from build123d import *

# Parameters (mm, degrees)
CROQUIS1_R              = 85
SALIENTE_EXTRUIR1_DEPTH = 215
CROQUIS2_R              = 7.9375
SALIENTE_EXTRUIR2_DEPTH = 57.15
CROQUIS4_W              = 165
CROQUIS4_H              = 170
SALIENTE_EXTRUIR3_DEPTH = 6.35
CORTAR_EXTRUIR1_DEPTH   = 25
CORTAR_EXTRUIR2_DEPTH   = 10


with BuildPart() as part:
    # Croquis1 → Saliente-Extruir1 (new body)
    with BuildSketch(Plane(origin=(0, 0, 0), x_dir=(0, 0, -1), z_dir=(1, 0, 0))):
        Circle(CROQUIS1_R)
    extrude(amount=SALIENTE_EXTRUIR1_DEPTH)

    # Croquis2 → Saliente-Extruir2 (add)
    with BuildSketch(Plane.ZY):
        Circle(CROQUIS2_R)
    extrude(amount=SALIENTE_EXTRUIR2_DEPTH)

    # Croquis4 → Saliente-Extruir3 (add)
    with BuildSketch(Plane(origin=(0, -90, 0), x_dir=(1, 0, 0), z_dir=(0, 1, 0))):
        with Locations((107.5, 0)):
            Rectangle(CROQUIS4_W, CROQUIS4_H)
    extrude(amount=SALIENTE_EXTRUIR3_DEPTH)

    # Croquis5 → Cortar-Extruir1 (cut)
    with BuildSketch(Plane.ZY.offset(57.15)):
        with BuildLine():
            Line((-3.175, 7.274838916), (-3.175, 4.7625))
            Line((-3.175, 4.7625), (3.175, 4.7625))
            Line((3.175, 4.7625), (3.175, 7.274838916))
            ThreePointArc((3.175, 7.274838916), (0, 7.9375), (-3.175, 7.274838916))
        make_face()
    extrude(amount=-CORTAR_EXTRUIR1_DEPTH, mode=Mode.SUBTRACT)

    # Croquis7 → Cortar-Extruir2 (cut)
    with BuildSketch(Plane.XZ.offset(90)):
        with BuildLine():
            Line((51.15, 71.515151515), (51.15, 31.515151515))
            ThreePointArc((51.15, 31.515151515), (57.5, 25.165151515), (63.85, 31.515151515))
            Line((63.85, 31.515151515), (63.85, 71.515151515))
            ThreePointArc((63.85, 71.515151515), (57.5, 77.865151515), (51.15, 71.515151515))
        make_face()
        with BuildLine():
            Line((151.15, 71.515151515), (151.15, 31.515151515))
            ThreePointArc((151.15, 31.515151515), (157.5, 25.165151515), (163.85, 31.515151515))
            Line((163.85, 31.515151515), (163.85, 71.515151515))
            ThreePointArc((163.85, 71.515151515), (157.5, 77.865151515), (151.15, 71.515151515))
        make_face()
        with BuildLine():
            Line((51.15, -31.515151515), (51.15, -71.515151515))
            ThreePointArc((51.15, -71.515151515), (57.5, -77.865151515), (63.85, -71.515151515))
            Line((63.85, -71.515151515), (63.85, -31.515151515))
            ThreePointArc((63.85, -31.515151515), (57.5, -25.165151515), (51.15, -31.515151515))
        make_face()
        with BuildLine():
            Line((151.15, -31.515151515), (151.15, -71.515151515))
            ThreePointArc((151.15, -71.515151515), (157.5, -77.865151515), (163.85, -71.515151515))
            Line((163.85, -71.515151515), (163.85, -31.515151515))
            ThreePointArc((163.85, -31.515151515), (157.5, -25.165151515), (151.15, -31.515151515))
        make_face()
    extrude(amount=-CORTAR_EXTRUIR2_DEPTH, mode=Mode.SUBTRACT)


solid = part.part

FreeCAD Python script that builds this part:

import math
import FreeCAD as App
import Part
import Sketcher

doc = App.newDocument("Part")
body = doc.addObject("PartDesign::Body", "Body")

# Sketch on YZ plane
sketch1 = body.newObject("Sketcher::SketchObject", "Sketch")
sketch1.AttachmentSupport = (doc.getObject("YZ_Plane"), [""])
sketch1.MapMode = "FlatFace"
sketch1.addGeometry(Part.Circle(App.Vector(0, 0, 0), App.Vector(0, 0, 1), 85), False)
sketch1.addConstraint([
    Sketcher.Constraint("Coincident", 0, 3, -1, 1),
    Sketcher.Constraint("Diameter", 0, 170.0),
])
pad1 = body.newObject("PartDesign::Pad", "Pad")
pad1.Profile = sketch1
pad1.Length = 215

# Sketch on YZ plane
sketch2 = body.newObject("Sketcher::SketchObject", "Sketch001")
sketch2.AttachmentSupport = (doc.getObject("YZ_Plane"), [""])
sketch2.MapMode = "FlatFace"
sketch2.addGeometry(Part.Circle(App.Vector(0, 0, 0), App.Vector(0, 0, 1), 8), False)
sketch2.addConstraint([
    Sketcher.Constraint("Coincident", 0, 3, -1, 1),
    Sketcher.Constraint("Diameter", 0, 15.875),
])
pad2 = body.newObject("PartDesign::Pad", "Pad001")
pad2.Profile = sketch2
pad2.Length = 57.15
pad2.Reversed = True

# Sketch on XZ plane
sketch3 = body.newObject("Sketcher::SketchObject", "Sketch002")
sketch3.AttachmentSupport = (doc.getObject("XZ_Plane"), [""])
sketch3.MapMode = "FlatFace"
sketch3.AttachmentOffset = App.Placement(App.Vector(0, 0, 90), App.Rotation())
sketch3.addGeometry([
    Part.LineSegment(App.Vector(25, -85, 0), App.Vector(25, 85, 0)),
    Part.LineSegment(App.Vector(25, 85, 0), App.Vector(190, 85, 0)),
    Part.LineSegment(App.Vector(190, 85, 0), App.Vector(190, -85, 0)),
    Part.LineSegment(App.Vector(190, -85, 0), App.Vector(25, -85, 0)),
], False)
sketch3.addConstraint([
    Sketcher.Constraint("Coincident", 0, 2, 1, 1),
    Sketcher.Constraint("Coincident", 1, 2, 2, 1),
    Sketcher.Constraint("Coincident", 2, 2, 3, 1),
    Sketcher.Constraint("Coincident", 3, 2, 0, 1),
    Sketcher.Constraint("Vertical", 0),
    Sketcher.Constraint("Horizontal", 1),
    Sketcher.Constraint("Vertical", 2),
    Sketcher.Constraint("Horizontal", 3),
    Sketcher.Constraint("DistanceX", 1, 1, 1, 2, 165.0),
    Sketcher.Constraint("DistanceY", 0, 1, 0, 2, 170.0),
    Sketcher.Constraint("DistanceX", -1, 1, 0, 2, 25.0),
    Sketcher.Constraint("DistanceY", -1, 1, 0, 2, 85.0),
])
pad3 = body.newObject("PartDesign::Pad", "Pad002")
pad3.Profile = sketch3
pad3.Length = 6.35
pad3.Reversed = True

# Sketch on YZ plane
sketch4 = body.newObject("Sketcher::SketchObject", "Sketch003")
sketch4.AttachmentSupport = (doc.getObject("YZ_Plane"), [""])
sketch4.MapMode = "FlatFace"
sketch4.AttachmentOffset = App.Placement(App.Vector(0, 0, -57.15), App.Rotation())
sketch4.addGeometry([
    Part.LineSegment(App.Vector(7.3, -3.2, 0), App.Vector(4.8, -3.2, 0)),
    Part.LineSegment(App.Vector(4.8, -3.2, 0), App.Vector(4.8, 3.2, 0)),
    Part.LineSegment(App.Vector(4.8, 3.2, 0), App.Vector(7.3, 3.2, 0)),
    Part.ArcOfCircle(Part.Circle(App.Vector(0, 0, 0), App.Vector(0, 0, 1), 7.9), math.radians(-24), math.radians(24)),
], False)
sketch4.addConstraint([
    Sketcher.Constraint("Coincident", 0, 2, 1, 1),
    Sketcher.Constraint("Coincident", 1, 2, 2, 1),
    Sketcher.Constraint("Coincident", 2, 2, 3, 2),
    Sketcher.Constraint("Coincident", 3, 1, 0, 1),
    Sketcher.Constraint("Horizontal", 0),
    Sketcher.Constraint("Vertical", 1),
    Sketcher.Constraint("Horizontal", 2),
    Sketcher.Constraint("Coincident", 3, 3, -1, 1),
    Sketcher.Constraint("Vertical", 2, 2, 3, 1),
    Sketcher.Constraint("DistanceY", 1, 1, 1, 2, 6.35),
    Sketcher.Constraint("Radius", 3, 7.9375),
    Sketcher.Constraint("DistanceX", 0, 2, 0, 1, 2.512339),
])
pocket1 = body.newObject("PartDesign::Pocket", "Pocket")
pocket1.Profile = sketch4
pocket1.Length = 25
pocket1.Reversed = True

# Sketch on XZ plane
sketch5 = body.newObject("Sketcher::SketchObject", "Sketch004")
sketch5.AttachmentSupport = (doc.getObject("XZ_Plane"), [""])
sketch5.MapMode = "FlatFace"
sketch5.AttachmentOffset = App.Placement(App.Vector(0, 0, 90), App.Rotation())
sketch5.addGeometry([
    Part.LineSegment(App.Vector(51, 72, 0), App.Vector(51, 32, 0)),  # 0
    Part.ArcOfCircle(Part.Circle(App.Vector(58, 32, 0), App.Vector(0, 0, 1), 6), math.radians(180), math.radians(360)),  # 1
    Part.LineSegment(App.Vector(64, 32, 0), App.Vector(64, 72, 0)),  # 2
    Part.ArcOfCircle(Part.Circle(App.Vector(58, 72, 0), App.Vector(0, 0, 1), 6), math.radians(0), math.radians(180)),  # 3
    Part.LineSegment(App.Vector(151, 72, 0), App.Vector(151, 32, 0)),  # 4
    Part.ArcOfCircle(Part.Circle(App.Vector(158, 32, 0), App.Vector(0, 0, 1), 6), math.radians(180), math.radians(360)),  # 5
    Part.LineSegment(App.Vector(164, 32, 0), App.Vector(164, 72, 0)),  # 6
    Part.ArcOfCircle(Part.Circle(App.Vector(158, 72, 0), App.Vector(0, 0, 1), 6), math.radians(0), math.radians(180)),  # 7
    Part.LineSegment(App.Vector(51, -32, 0), App.Vector(51, -72, 0)),  # 8
    Part.ArcOfCircle(Part.Circle(App.Vector(58, -72, 0), App.Vector(0, 0, 1), 6), math.radians(180), math.radians(360)),  # 9
    Part.LineSegment(App.Vector(64, -72, 0), App.Vector(64, -32, 0)),  # 10
    Part.ArcOfCircle(Part.Circle(App.Vector(58, -32, 0), App.Vector(0, 0, 1), 6), math.radians(0), math.radians(180)),  # 11
    Part.LineSegment(App.Vector(151, -32, 0), App.Vector(151, -72, 0)),  # 12
    Part.ArcOfCircle(Part.Circle(App.Vector(158, -72, 0), App.Vector(0, 0, 1), 6), math.radians(180), math.radians(360)),  # 13
    Part.LineSegment(App.Vector(164, -72, 0), App.Vector(164, -32, 0)),  # 14
    Part.ArcOfCircle(Part.Circle(App.Vector(158, -32, 0), App.Vector(0, 0, 1), 6), math.radians(0), math.radians(180)),  # 15
], False)
sketch5.addConstraint([
    Sketcher.Constraint("Tangent", 0, 2, 1, 1),
    Sketcher.Constraint("Tangent", 1, 2, 2, 1),
    Sketcher.Constraint("Tangent", 2, 2, 3, 1),
    Sketcher.Constraint("Tangent", 3, 2, 0, 1),
    Sketcher.Constraint("Tangent", 4, 2, 5, 1),
    Sketcher.Constraint("Tangent", 5, 2, 6, 1),
    Sketcher.Constraint("Tangent", 6, 2, 7, 1),
    Sketcher.Constraint("Tangent", 7, 2, 4, 1),
    Sketcher.Constraint("Tangent", 8, 2, 9, 1),
    Sketcher.Constraint("Tangent", 9, 2, 10, 1),
    Sketcher.Constraint("Tangent", 10, 2, 11, 1),
    Sketcher.Constraint("Tangent", 11, 2, 8, 1),
    Sketcher.Constraint("Tangent", 12, 2, 13, 1),
    Sketcher.Constraint("Tangent", 13, 2, 14, 1),
    Sketcher.Constraint("Tangent", 14, 2, 15, 1),
    Sketcher.Constraint("Tangent", 15, 2, 12, 1),
    Sketcher.Constraint("Vertical", 0),
    Sketcher.Constraint("Vertical", 2),
    Sketcher.Constraint("Vertical", 4),
    Sketcher.Constraint("Vertical", 6),
    Sketcher.Constraint("Vertical", 8),
    Sketcher.Constraint("Vertical", 10),
    Sketcher.Constraint("Vertical", 12),
    Sketcher.Constraint("Vertical", 14),
    Sketcher.Constraint("Equal", 3, 5),
    Sketcher.Constraint("Equal", 7, 9),
    Sketcher.Constraint("Equal", 11, 13),
    Sketcher.Constraint("Symmetric", 3, 3, 9, 3, -1),
    Sketcher.Constraint("Symmetric", 7, 3, 13, 3, -1),
    Sketcher.Constraint("Horizontal", 1, 3, 5, 3),
    Sketcher.Constraint("Horizontal", 3, 3, 7, 3),
    Sketcher.Constraint("Horizontal", 11, 3, 15, 3),
    Sketcher.Constraint("Equal", 6, 8),
    Sketcher.Constraint("DistanceY", 0, 2, 0, 1, 40.0),
    Sketcher.Constraint("Radius", 1, 6.35),
    Sketcher.Constraint("DistanceX", 1, 3, 5, 3, 100.0),
    Sketcher.Constraint("DistanceX", -1, 1, 1, 3, 57.5),
    Sketcher.Constraint("DistanceY", -1, 1, 1, 3, 31.515152),
])
pocket2 = body.newObject("PartDesign::Pocket", "Pocket001")
pocket2.Profile = sketch5
pocket2.Length = 10

doc.recompute()
